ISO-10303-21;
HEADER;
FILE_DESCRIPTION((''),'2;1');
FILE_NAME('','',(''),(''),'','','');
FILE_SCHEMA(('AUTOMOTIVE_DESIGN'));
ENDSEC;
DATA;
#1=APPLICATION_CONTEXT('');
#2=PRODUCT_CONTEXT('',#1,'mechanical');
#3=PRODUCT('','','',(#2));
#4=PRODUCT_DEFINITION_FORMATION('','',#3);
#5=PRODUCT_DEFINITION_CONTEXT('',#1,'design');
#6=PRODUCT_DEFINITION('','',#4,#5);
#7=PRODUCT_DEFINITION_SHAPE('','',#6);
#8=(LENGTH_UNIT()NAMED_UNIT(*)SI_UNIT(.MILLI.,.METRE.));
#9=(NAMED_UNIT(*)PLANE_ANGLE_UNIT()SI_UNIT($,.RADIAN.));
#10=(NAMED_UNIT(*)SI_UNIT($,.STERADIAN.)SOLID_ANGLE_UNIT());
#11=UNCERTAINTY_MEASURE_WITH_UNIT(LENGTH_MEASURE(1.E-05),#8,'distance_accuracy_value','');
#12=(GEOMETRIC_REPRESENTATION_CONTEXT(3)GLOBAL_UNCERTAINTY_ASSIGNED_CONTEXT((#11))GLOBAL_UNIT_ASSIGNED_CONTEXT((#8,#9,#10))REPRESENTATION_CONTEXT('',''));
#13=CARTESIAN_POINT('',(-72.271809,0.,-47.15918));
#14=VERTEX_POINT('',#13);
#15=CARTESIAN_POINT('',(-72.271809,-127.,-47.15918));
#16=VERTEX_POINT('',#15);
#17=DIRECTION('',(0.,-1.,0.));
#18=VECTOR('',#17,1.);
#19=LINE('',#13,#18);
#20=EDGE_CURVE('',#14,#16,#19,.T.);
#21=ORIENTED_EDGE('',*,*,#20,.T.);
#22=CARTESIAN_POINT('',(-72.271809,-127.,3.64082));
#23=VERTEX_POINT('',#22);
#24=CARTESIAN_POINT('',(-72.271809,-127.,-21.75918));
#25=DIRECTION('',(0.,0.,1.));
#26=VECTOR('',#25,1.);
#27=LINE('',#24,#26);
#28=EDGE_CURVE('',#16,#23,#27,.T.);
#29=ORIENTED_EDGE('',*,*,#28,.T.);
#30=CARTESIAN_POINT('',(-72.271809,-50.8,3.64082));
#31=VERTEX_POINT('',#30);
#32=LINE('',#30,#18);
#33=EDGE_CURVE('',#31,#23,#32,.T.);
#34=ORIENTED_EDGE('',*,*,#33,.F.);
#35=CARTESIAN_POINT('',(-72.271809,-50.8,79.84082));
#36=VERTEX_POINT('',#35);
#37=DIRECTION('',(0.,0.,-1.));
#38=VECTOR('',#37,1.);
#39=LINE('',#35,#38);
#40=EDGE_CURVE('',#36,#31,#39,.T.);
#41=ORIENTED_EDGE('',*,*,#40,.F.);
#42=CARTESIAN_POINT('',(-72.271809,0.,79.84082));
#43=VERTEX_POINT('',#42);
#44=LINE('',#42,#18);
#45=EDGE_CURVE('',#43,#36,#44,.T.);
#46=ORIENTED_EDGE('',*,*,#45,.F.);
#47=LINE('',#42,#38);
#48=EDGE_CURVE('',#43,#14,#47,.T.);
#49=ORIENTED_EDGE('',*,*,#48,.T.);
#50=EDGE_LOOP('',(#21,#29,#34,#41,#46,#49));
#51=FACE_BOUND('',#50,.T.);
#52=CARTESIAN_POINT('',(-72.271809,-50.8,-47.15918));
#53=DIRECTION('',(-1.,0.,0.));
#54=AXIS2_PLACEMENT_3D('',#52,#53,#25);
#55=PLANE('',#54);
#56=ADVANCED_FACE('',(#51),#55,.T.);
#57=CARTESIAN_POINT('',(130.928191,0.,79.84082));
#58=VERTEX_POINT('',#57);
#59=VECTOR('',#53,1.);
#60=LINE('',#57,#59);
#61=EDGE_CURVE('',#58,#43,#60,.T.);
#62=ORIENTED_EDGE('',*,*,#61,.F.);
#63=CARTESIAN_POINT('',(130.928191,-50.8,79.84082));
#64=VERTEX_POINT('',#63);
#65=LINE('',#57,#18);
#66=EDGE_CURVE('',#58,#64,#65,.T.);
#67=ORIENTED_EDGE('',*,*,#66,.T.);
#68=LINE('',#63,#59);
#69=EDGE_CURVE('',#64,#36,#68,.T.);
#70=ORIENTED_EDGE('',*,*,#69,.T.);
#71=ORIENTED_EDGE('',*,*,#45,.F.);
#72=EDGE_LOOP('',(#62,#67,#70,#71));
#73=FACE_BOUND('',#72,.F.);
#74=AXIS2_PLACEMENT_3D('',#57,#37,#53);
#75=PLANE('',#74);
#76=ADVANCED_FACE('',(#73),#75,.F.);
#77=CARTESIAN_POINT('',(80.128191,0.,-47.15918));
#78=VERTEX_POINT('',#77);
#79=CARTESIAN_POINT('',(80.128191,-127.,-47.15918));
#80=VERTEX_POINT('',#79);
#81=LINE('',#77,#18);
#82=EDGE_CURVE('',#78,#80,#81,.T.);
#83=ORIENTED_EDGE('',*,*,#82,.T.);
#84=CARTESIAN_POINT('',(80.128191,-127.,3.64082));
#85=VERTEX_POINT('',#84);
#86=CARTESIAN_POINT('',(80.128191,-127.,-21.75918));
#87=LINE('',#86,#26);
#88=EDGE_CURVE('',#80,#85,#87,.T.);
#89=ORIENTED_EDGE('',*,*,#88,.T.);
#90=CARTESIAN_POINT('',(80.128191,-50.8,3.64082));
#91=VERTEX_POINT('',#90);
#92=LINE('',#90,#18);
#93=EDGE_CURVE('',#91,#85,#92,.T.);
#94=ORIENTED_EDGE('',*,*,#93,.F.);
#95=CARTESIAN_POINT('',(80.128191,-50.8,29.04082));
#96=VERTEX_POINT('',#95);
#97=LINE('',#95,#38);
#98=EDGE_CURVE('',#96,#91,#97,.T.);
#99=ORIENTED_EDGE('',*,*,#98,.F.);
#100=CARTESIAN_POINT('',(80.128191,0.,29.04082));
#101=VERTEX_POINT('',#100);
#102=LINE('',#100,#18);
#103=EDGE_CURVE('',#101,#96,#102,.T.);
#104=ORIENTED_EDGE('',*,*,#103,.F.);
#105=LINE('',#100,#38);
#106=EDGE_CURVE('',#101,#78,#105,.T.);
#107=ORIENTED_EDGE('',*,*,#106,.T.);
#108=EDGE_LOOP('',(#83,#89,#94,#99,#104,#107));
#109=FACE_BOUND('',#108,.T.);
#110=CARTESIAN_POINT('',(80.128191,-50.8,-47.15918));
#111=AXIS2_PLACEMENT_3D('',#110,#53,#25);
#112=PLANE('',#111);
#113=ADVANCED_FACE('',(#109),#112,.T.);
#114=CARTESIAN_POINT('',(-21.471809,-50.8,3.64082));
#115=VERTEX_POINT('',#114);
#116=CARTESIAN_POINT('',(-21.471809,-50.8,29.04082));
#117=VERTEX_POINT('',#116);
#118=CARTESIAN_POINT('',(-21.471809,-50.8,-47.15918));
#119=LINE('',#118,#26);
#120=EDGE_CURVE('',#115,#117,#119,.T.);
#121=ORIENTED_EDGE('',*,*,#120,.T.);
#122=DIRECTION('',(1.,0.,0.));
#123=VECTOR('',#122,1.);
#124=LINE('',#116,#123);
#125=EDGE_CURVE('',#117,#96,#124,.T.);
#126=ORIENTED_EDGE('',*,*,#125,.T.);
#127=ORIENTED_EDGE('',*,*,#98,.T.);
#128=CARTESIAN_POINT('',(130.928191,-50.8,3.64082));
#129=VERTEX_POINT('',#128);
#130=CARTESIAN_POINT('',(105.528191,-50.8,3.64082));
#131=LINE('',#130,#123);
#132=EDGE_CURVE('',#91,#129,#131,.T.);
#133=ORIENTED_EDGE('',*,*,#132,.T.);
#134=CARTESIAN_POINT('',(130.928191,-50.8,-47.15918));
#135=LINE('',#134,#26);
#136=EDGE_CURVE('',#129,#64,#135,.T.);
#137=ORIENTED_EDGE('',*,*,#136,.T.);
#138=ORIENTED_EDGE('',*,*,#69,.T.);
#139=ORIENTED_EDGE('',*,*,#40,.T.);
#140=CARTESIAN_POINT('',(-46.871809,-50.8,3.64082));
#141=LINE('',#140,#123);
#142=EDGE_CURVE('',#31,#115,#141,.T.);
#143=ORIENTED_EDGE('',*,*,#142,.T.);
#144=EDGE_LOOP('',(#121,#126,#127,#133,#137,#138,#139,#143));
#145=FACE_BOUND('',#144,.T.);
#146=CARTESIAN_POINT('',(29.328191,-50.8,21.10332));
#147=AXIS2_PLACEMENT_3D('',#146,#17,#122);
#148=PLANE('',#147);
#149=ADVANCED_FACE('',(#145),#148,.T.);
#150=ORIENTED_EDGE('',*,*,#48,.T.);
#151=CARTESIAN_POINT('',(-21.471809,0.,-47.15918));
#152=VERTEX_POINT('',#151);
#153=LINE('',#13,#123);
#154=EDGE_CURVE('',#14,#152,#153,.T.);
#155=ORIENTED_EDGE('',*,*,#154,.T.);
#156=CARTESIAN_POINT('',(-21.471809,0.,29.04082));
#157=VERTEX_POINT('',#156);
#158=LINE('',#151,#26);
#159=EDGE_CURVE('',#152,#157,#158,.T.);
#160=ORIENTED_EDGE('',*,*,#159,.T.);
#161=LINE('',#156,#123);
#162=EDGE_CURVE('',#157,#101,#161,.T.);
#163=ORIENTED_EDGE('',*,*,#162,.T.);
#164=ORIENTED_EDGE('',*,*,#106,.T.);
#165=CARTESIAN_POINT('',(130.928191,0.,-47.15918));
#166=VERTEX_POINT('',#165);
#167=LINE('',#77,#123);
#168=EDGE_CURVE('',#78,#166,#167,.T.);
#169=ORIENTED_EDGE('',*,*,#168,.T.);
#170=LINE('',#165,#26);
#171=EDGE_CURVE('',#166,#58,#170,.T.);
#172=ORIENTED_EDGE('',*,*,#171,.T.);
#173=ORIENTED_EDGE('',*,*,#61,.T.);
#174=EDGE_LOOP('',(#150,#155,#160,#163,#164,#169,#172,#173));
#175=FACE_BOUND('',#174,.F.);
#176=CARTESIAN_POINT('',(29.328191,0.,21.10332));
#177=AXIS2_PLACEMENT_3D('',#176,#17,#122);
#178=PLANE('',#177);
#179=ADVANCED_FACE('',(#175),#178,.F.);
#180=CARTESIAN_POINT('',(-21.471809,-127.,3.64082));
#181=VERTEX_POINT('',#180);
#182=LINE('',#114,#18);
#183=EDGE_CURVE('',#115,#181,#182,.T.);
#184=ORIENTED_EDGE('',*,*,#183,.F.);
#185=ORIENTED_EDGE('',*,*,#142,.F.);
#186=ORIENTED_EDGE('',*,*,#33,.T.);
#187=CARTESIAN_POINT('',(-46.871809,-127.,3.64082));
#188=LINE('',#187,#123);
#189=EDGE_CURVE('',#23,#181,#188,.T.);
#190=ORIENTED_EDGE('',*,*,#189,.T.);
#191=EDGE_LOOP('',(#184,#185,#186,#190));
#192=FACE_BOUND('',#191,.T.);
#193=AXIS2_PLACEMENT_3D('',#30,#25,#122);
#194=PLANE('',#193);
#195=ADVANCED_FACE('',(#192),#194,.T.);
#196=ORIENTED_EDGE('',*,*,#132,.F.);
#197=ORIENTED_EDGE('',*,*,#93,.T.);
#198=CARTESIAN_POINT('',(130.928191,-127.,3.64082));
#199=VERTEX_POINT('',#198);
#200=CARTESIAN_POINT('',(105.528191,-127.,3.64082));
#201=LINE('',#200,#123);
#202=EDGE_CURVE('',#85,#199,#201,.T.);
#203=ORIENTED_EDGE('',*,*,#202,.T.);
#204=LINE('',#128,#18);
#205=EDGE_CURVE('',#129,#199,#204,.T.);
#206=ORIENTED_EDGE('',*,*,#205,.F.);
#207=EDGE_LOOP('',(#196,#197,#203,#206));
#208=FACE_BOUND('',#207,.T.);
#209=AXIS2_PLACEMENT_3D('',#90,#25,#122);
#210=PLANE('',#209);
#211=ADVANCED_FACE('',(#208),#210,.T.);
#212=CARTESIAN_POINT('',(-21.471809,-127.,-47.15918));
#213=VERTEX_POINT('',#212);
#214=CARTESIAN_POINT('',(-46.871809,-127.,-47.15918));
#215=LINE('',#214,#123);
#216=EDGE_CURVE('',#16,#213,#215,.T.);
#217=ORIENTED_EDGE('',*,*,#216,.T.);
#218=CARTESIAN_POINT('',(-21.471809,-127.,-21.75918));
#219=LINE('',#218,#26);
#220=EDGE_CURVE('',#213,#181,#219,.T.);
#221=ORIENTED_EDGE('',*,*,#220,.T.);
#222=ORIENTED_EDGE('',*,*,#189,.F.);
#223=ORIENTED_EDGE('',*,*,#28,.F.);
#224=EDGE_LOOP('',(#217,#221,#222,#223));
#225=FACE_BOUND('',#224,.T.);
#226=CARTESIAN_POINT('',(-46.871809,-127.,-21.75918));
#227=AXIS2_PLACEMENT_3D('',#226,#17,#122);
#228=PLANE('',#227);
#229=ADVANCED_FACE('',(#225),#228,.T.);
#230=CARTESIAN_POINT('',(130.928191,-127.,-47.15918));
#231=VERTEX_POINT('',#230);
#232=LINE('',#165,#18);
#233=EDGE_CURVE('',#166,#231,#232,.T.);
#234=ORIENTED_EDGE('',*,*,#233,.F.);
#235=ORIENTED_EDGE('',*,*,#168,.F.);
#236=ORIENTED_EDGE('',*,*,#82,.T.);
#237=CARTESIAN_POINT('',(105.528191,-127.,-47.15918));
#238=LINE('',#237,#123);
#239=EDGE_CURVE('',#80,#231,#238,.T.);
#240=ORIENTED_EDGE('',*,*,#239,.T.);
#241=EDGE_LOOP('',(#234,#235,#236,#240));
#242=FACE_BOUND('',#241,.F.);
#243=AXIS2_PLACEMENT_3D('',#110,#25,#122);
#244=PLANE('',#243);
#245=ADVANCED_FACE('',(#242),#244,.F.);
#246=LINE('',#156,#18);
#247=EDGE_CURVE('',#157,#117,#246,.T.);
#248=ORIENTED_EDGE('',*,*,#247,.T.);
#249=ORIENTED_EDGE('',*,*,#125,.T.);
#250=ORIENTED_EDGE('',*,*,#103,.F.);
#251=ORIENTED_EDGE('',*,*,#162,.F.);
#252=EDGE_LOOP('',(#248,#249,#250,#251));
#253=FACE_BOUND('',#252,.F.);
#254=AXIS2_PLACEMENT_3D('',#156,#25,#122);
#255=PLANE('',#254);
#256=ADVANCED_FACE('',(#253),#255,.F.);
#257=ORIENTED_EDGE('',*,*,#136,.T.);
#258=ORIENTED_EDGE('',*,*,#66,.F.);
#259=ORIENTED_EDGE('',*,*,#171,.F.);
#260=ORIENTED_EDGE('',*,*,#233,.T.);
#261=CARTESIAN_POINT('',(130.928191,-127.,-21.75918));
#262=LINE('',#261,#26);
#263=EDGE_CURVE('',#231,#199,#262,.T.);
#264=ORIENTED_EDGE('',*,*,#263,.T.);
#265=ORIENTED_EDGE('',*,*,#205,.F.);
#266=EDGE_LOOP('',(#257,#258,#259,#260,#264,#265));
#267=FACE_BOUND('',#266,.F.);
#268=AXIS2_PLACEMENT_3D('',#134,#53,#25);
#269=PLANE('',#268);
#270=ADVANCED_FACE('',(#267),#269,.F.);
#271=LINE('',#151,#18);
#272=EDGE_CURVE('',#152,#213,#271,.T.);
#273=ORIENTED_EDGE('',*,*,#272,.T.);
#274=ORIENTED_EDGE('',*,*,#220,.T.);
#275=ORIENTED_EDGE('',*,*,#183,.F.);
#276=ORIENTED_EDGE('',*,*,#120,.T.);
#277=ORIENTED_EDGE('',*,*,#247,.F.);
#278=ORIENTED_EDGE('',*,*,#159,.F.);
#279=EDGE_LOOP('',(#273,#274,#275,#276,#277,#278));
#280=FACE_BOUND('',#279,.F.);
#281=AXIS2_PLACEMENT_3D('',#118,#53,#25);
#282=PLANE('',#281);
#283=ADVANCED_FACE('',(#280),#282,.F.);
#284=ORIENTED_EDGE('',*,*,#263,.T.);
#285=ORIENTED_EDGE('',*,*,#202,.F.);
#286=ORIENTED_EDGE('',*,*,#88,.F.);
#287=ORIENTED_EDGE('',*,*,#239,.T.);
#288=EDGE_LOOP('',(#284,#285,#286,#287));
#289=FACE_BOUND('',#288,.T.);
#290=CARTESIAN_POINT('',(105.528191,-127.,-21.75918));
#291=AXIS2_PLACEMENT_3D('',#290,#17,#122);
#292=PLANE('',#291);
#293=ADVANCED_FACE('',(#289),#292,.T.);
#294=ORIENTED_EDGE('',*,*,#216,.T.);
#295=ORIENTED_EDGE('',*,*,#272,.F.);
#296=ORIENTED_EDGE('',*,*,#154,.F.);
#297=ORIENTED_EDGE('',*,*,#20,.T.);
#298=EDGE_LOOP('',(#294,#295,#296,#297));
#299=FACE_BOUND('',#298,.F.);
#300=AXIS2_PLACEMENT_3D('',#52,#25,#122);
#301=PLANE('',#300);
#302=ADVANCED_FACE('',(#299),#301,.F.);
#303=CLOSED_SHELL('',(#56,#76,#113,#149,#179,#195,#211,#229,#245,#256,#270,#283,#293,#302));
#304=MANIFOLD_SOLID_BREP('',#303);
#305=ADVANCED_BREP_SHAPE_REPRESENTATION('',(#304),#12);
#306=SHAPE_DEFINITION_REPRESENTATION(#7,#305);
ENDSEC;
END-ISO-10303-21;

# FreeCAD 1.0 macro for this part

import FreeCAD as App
import Part
import Sketcher
Q = App.Units.Quantity


def add_polygon(sketch, points):
    """Adds a closed chain of lines whose ends are joined by coincident constraints."""
    first, n = sketch.GeometryCount, len(points)
    for a, b in zip(points, points[1:] + points[:1]):
        sketch.addGeometry(Part.LineSegment(App.Vector(*a, 0), App.Vector(*b, 0)), False)
    for i in range(n):
        sketch.addConstraint(Sketcher.Constraint("Coincident", first + i, 2, first + (i + 1) % n, 1))

doc = App.newDocument("Part")
body = doc.addObject("PartDesign::Body", "Body")

# Sketch on XZ plane
sketch1 = body.newObject("Sketcher::SketchObject", "Sketch")
sketch1.AttachmentSupport = (doc.getObject("XZ_Plane"), [""])
sketch1.MapMode = "FlatFace"
add_polygon(sketch1, [(-72, 80), (-72, -47), (-21, -47), (-21, 29), (80, 29), (80, -47), (131, -47), (131, 80)])  # lines 0-7
sketch1.addConstraint([
    Sketcher.Constraint("Vertical", 0),
    Sketcher.Constraint("Horizontal", 1),
    Sketcher.Constraint("Vertical", 2),
    Sketcher.Constraint("Horizontal", 3),
    Sketcher.Constraint("Vertical", 4),
    Sketcher.Constraint("Horizontal", 5),
    Sketcher.Constraint("Vertical", 6),
    Sketcher.Constraint("Horizontal", 7),
    Sketcher.Constraint("Horizontal", 1, 2, 4, 2),
    Sketcher.Constraint("Equal", 1, 5),
    Sketcher.Constraint("DistanceX", 1, 1, 1, 2, Q("2 in")),
    Sketcher.Constraint("DistanceX", 3, 1, 3, 2, Q("4 in")),
    Sketcher.Constraint("DistanceY", 0, 2, 0, 1, Q("5 in")),
    Sketcher.Constraint("DistanceY", 2, 1, 2, 2, Q("3 in")),
    Sketcher.Constraint("DistanceX", 0, 2, -1, 1, Q("72.271809 mm")),
    Sketcher.Constraint("DistanceY", 0, 2, -1, 1, Q("47.15918 mm")),
])
pad1 = body.newObject("PartDesign::Pad", "Pad")
pad1.Profile = sketch1
pad1.Length = Q("2 in")

# Sketch on XZ plane
sketch2 = body.newObject("Sketcher::SketchObject", "Sketch001")
sketch2.AttachmentSupport = (doc.getObject("XZ_Plane"), [""])
sketch2.MapMode = "FlatFace"
sketch2.AttachmentOffset = App.Placement(App.Vector(0, 0, 2 * 25.4), App.Rotation())
add_polygon(sketch2, [(-72, 4), (-72, -47), (-21, -47), (-21, 4)])  # lines 0-3
sketch2.addConstraint([
    Sketcher.Constraint("Vertical", 0),
    Sketcher.Constraint("Horizontal", 1),
    Sketcher.Constraint("Vertical", 2),
    Sketcher.Constraint("Horizontal", 3),
    Sketcher.Constraint("Equal", 3, 0),
    Sketcher.Constraint("DistanceX", 1, 1, 1, 2, Q("2 in")),
    Sketcher.Constraint("DistanceX", 0, 2, -1, 1, Q("72.271809 mm")),
    Sketcher.Constraint("DistanceY", 0, 2, -1, 1, Q("47.15918 mm")),
])
pad2 = body.newObject("PartDesign::Pad", "Pad001")
pad2.Profile = sketch2
pad2.Length = Q("3 in")

# Sketch on XZ plane
sketch3 = body.newObject("Sketcher::SketchObject", "Sketch002")
sketch3.AttachmentSupport = (doc.getObject("XZ_Plane"), [""])
sketch3.MapMode = "FlatFace"
sketch3.AttachmentOffset = App.Placement(App.Vector(0, 0, 2 * 25.4), App.Rotation())
add_polygon(sketch3, [(80, 4), (80, -47), (131, -47), (131, 4)])  # lines 0-3
sketch3.addConstraint([
    Sketcher.Constraint("Vertical", 0),
    Sketcher.Constraint("Horizontal", 1),
    Sketcher.Constraint("Vertical", 2),
    Sketcher.Constraint("Horizontal", 3),
    Sketcher.Constraint("Equal", 3, 0),
    Sketcher.Constraint("DistanceX", 1, 1, 1, 2, Q("2 in")),
    Sketcher.Constraint("DistanceX", -1, 1, 0, 2, Q("80.128191 mm")),
    Sketcher.Constraint("DistanceY", 0, 2, -1, 1, Q("47.15918 mm")),
])
pad3 = body.newObject("PartDesign::Pad", "Pad002")
pad3.Profile = sketch3
pad3.Length = Q("3 in")

doc.recompute()
